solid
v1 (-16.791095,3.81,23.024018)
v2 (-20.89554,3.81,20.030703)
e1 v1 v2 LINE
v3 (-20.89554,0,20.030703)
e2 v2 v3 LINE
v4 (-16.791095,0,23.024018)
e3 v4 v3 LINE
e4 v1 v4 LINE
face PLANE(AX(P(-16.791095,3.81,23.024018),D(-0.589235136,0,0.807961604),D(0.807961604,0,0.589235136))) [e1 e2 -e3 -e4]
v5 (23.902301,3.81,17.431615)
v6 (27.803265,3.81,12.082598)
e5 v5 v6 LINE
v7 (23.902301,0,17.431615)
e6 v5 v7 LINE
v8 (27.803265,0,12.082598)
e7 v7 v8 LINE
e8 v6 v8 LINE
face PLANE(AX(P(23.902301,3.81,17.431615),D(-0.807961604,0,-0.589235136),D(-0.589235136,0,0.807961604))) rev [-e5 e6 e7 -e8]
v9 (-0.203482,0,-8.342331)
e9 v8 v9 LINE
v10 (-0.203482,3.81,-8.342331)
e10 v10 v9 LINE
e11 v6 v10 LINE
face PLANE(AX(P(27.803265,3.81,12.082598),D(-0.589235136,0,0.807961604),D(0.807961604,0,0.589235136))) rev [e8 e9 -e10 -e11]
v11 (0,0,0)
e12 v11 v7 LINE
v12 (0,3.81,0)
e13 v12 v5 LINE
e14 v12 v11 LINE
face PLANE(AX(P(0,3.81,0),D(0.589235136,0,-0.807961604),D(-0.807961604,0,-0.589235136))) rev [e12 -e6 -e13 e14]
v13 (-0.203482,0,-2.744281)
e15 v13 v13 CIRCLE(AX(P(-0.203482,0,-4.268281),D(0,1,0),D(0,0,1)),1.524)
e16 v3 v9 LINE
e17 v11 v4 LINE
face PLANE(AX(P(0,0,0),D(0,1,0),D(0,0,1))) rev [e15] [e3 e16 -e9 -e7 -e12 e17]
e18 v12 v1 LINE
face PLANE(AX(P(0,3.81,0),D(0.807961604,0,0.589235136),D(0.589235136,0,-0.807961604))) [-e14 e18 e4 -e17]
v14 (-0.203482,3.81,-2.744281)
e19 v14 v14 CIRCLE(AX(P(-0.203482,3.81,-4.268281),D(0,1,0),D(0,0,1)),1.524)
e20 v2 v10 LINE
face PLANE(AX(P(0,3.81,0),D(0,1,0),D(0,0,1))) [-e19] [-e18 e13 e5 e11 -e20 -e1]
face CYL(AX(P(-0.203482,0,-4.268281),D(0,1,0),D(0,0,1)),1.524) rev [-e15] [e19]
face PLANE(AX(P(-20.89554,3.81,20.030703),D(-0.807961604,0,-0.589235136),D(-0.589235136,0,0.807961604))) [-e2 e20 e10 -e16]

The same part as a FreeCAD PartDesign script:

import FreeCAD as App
import Part
import Sketcher
Q = App.Units.Quantity


def add_polygon(sketch, points):
    """Adds a closed chain of lines whose ends are joined by coincident constraints."""
    first, n = sketch.GeometryCount, len(points)
    for a, b in zip(points, points[1:] + points[:1]):
        sketch.addGeometry(Part.LineSegment(App.Vector(*a, 0), App.Vector(*b, 0)), False)
    for i in range(n):
        sketch.addConstraint(Sketcher.Constraint("Coincident", first + i, 2, first + (i + 1) % n, 1))

doc = App.newDocument("Part")
body = doc.addObject("PartDesign::Body", "Body")

# Sketch on XZ plane
sketch1 = body.newObject("Sketcher::SketchObject", "Sketch")
sketch1.AttachmentSupport = (doc.getObject("XZ_Plane"), [""])
sketch1.MapMode = "FlatFace"
add_polygon(sketch1, [(-17, 23), (0, 0), (24, 17), (28, 12), (0, -8), (-21, 20)])  # lines 0-5
sketch1.addConstraint([
    Sketcher.Constraint("Coincident", 0, 2, -1, 1),
    Sketcher.Constraint("Perpendicular", 0, 1),
    Sketcher.Constraint("Perpendicular", 1, 2),
    Sketcher.Constraint("Perpendicular", 2, 3),
    Sketcher.Constraint("Perpendicular", 3, 4),
    Sketcher.Constraint("Perpendicular", 4, 5),
    Sketcher.Constraint("Distance", 5, Q("0.2 in")),
    Sketcher.Constraint("DistanceX", -1, 1, 1, 2, Q("23.902301 mm")),
    Sketcher.Constraint("DistanceY", -1, 1, 2, 2, Q("12.082598 mm")),
    Sketcher.Constraint("Distance", 1, Q("29.583462 mm")),
    Sketcher.Constraint("Distance", 4, Q("35.116811 mm")),
])
pad1 = body.newObject("PartDesign::Pad", "Pad")
pad1.Profile = sketch1
pad1.Length = Q("0.15 in")
pad1.Reversed = True

# Sketch on XZ plane
sketch2 = body.newObject("Sketcher::SketchObject", "Sketch001")
sketch2.AttachmentSupport = (doc.getObject("XZ_Plane"), [""])
sketch2.MapMode = "FlatFace"
sketch2.AttachmentOffset = App.Placement(App.Vector(0, 0, -0.15 * 25.4), App.Rotation())
sketch2.addGeometry(Part.Circle(App.Vector(-0.2, -4.3, 0), App.Vector(0, 0, 1), 1.5), False)
sketch2.addConstraint([
    Sketcher.Constraint("Diameter", 0, Q("0.12 in")),
    Sketcher.Constraint("DistanceX", 0, 3, -1, 1, Q("0.203482 mm")),
    Sketcher.Constraint("DistanceY", 0, 3, -1, 1, Q("4.268281 mm")),
])
pocket1 = body.newObject("PartDesign::Pocket", "Pocket")
pocket1.Profile = sketch2
pocket1.Type = "ThroughAll"
pocket1.Reversed = True

doc.recompute()
